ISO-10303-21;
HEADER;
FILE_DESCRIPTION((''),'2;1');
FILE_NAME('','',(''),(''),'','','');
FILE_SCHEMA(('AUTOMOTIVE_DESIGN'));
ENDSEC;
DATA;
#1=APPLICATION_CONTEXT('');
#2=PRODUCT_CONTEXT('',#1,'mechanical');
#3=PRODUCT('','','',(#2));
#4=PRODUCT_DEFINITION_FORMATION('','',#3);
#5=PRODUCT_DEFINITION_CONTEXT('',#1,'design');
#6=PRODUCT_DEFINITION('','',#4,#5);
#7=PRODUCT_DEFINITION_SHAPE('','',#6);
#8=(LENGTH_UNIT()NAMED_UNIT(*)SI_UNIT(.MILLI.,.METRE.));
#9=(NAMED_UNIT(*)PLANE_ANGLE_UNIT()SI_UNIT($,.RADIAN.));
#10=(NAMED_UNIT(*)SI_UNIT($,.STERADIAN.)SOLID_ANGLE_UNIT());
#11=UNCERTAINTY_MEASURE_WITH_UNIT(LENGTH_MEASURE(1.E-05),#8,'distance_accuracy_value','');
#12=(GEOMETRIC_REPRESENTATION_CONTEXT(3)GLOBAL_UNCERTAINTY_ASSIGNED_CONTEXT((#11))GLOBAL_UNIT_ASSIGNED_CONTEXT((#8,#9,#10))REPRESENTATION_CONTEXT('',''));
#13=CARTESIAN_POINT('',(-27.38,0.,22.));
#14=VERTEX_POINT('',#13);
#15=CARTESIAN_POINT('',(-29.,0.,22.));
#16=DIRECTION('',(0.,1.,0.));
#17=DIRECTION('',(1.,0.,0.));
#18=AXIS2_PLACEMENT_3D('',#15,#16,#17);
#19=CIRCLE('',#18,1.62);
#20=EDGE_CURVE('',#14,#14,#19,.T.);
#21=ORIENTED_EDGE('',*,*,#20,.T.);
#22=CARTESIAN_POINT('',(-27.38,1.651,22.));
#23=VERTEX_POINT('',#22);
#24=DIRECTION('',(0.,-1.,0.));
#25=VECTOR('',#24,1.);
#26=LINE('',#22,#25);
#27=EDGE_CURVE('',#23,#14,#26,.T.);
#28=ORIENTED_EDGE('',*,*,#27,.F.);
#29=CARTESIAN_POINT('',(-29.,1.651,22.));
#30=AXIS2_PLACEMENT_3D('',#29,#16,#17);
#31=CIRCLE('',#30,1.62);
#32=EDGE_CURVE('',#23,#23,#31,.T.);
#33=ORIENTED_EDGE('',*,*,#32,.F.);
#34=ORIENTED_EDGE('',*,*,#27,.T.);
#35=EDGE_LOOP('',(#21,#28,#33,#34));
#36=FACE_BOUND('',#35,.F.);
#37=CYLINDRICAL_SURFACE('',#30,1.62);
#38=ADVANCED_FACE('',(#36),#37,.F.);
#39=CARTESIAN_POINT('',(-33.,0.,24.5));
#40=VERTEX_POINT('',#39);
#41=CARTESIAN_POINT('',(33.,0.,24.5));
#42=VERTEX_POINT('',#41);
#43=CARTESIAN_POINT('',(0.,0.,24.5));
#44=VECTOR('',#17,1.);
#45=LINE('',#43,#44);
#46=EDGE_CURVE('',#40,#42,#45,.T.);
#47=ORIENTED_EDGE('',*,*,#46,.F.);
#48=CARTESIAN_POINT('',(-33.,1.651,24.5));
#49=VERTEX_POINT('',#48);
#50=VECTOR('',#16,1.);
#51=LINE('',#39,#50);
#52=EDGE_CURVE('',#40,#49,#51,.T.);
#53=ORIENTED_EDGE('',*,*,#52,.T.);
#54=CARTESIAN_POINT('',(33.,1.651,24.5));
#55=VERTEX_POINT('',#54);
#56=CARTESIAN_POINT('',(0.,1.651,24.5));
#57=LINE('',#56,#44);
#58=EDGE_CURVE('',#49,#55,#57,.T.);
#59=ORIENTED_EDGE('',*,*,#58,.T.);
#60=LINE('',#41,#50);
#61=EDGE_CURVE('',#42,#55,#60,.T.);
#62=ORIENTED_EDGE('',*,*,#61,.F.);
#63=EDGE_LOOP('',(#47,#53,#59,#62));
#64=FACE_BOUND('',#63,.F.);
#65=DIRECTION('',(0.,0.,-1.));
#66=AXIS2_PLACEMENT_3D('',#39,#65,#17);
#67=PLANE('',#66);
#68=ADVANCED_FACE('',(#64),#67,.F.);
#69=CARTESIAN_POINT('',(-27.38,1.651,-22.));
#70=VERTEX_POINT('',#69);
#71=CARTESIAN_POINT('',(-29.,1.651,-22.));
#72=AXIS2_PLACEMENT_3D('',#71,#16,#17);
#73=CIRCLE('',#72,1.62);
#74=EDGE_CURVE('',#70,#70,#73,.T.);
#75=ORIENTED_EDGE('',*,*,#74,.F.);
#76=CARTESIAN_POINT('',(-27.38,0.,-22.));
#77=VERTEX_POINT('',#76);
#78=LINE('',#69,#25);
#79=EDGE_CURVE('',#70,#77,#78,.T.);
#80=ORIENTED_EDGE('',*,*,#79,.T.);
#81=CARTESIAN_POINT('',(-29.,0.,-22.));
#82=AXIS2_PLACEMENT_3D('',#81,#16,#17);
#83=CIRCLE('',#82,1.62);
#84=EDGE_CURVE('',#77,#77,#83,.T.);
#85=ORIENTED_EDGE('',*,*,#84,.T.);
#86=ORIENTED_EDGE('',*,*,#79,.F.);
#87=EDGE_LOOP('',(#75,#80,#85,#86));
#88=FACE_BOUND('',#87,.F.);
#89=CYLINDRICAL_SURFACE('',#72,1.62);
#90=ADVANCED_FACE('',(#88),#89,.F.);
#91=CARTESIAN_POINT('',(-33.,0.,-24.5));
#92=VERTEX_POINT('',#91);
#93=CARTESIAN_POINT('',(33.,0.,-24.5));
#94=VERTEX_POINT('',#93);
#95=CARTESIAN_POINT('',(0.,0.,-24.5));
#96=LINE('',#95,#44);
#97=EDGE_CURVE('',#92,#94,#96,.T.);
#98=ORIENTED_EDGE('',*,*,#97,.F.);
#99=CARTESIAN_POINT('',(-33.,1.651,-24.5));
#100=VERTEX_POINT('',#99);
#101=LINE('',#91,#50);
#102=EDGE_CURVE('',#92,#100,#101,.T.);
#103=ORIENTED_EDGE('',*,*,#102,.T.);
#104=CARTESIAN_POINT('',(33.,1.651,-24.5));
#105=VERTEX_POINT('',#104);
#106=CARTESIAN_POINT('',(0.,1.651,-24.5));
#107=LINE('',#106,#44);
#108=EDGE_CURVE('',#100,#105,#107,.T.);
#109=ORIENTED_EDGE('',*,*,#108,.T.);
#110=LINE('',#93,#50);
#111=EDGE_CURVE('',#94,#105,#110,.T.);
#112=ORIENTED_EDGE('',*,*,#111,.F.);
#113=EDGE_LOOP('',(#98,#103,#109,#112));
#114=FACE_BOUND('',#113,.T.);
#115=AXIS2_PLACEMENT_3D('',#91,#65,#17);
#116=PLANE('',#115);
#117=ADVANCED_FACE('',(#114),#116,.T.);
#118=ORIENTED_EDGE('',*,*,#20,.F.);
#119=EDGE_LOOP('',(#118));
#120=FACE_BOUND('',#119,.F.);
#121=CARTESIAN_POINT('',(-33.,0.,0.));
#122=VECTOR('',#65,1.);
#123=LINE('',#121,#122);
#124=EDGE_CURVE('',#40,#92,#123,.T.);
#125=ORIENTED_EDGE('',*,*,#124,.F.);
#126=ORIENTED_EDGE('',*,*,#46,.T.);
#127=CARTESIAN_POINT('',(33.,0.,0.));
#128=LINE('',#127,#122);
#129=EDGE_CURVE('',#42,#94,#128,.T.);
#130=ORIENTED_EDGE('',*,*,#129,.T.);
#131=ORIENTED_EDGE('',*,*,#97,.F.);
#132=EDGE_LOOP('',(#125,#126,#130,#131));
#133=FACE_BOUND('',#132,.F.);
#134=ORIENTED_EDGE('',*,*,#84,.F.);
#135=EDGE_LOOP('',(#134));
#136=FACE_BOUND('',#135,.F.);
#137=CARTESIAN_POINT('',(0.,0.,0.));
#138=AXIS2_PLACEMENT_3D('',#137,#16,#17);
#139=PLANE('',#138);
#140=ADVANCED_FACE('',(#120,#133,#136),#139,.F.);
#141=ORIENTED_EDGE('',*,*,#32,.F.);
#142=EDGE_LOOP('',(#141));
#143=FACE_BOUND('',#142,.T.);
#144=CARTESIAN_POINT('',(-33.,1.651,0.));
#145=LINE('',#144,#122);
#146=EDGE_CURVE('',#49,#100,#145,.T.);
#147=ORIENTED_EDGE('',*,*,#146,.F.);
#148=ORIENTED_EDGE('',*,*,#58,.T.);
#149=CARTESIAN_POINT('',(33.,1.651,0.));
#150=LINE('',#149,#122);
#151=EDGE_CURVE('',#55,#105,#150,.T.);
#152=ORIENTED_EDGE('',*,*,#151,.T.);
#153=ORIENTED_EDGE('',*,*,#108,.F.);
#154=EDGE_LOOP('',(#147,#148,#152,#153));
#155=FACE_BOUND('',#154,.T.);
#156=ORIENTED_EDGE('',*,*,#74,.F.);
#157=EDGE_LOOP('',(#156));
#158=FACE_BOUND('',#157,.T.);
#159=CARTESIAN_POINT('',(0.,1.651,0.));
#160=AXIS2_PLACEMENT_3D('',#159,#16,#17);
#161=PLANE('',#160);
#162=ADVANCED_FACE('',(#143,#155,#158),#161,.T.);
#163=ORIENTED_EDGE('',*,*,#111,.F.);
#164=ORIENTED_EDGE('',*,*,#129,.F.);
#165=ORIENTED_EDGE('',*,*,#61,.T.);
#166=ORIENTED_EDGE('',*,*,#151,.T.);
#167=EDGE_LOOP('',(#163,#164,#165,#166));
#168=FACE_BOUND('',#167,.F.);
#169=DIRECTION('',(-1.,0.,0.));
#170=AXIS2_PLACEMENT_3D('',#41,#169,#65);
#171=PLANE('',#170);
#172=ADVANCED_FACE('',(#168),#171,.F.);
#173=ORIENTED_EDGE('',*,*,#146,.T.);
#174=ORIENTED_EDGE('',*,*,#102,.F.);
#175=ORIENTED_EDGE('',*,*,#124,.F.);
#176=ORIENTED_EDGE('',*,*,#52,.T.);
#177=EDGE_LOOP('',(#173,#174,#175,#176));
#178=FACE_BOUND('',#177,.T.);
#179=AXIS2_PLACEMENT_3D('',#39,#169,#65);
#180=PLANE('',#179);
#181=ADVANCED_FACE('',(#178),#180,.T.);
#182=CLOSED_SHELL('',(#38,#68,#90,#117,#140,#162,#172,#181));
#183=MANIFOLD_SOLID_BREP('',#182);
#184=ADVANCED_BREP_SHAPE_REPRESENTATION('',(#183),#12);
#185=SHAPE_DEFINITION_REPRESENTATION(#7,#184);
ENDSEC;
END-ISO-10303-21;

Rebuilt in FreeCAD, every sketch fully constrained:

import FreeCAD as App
import Part
import Sketcher
from FreeCAD import Vector
Q = App.Units.Quantity


def add_polygon(sketch, points):
    """Adds a closed chain of lines whose ends are joined by coincident constraints."""
    first, n = sketch.GeometryCount, len(points)
    for a, b in zip(points, points[1:] + points[:1]):
        sketch.addGeometry(Part.LineSegment(App.Vector(*a, 0), App.Vector(*b, 0)), False)
    for i in range(n):
        sketch.addConstraint(Sketcher.Constraint("Coincident", first + i, 2, first + (i + 1) % n, 1))

doc = App.newDocument("Part")
params = doc.addObject("Spreadsheet::Sheet", "Params")
for row, (alias, value) in enumerate([
    ("sketch1_width", "66 mm"),
    ("sketch1_height", "49 mm"),
    ("pad1_length", "1.651 mm"),
    ("sketch2_diameter", "3.24 mm"),
], start=1):
    params.set(f"A{row}", alias)
    params.set(f"B{row}", "=" + value)
    params.setAlias(f"B{row}", alias)

body = doc.addObject("PartDesign::Body", "Body")

# Sketch on XZ plane
sketch1 = body.newObject("Sketcher::SketchObject", "Sketch")
sketch1.AttachmentSupport = (doc.getObject("XZ_Plane"), [""])
sketch1.MapMode = "FlatFace"
add_polygon(sketch1, [(-33, -24), (-33, 24), (33, 24), (33, -24)])  # lines 0-3
sketch1.addConstraint([
    Sketcher.Constraint("Vertical", 0),
    Sketcher.Constraint("Horizontal", 1),
    Sketcher.Constraint("Vertical", 2),
    Sketcher.Constraint("Horizontal", 3),
    Sketcher.Constraint("Symmetric", 0, 2, 2, 2, -1, 1),
    Sketcher.Constraint("DistanceX", 1, 1, 1, 2, Q("66 mm")),
    Sketcher.Constraint("DistanceY", 0, 1, 0, 2, Q("49 mm")),
])
sketch1.setExpression("Constraints[9]", "Params.sketch1_width")
sketch1.setExpression("Constraints[10]", "Params.sketch1_height")
pad1 = body.newObject("PartDesign::Pad", "Pad")
pad1.Profile = sketch1
pad1.setExpression("Length", "Params.pad1_length")
pad1.Reversed = True

# Sketch on XZ plane
sketch2 = body.newObject("Sketcher::SketchObject", "Sketch001")
sketch2.AttachmentSupport = (doc.getObject("XZ_Plane"), [""])
sketch2.MapMode = "FlatFace"
sketch2.AttachmentOffset = App.Placement(Vector(0, 0, -1.651), App.Rotation())
sketch2.addGeometry([
    Part.Circle(Vector(-29, -22, 0), Vector(0, 0, 1), 1.6),
    Part.Circle(Vector(-29, 22, 0), Vector(0, 0, 1), 1.6),
], False)
sketch2.addConstraint([
    Sketcher.Constraint("Equal", 0, 1),
    Sketcher.Constraint("Symmetric", 0, 3, 1, 3, -1),
    Sketcher.Constraint("Diameter", 0, Q("3.24 mm")),
    Sketcher.Constraint("DistanceX", 0, 3, -1, 1, Q("29 mm")),
    Sketcher.Constraint("DistanceY", 0, 3, -1, 1, Q("22 mm")),
])
sketch2.setExpression("Constraints[2]", "Params.sketch2_diameter")
pocket1 = body.newObject("PartDesign::Pocket", "Pocket")
pocket1.Profile = sketch2
pocket1.Type = "ThroughAll"
pocket1.Reversed = True

doc.recompute()
